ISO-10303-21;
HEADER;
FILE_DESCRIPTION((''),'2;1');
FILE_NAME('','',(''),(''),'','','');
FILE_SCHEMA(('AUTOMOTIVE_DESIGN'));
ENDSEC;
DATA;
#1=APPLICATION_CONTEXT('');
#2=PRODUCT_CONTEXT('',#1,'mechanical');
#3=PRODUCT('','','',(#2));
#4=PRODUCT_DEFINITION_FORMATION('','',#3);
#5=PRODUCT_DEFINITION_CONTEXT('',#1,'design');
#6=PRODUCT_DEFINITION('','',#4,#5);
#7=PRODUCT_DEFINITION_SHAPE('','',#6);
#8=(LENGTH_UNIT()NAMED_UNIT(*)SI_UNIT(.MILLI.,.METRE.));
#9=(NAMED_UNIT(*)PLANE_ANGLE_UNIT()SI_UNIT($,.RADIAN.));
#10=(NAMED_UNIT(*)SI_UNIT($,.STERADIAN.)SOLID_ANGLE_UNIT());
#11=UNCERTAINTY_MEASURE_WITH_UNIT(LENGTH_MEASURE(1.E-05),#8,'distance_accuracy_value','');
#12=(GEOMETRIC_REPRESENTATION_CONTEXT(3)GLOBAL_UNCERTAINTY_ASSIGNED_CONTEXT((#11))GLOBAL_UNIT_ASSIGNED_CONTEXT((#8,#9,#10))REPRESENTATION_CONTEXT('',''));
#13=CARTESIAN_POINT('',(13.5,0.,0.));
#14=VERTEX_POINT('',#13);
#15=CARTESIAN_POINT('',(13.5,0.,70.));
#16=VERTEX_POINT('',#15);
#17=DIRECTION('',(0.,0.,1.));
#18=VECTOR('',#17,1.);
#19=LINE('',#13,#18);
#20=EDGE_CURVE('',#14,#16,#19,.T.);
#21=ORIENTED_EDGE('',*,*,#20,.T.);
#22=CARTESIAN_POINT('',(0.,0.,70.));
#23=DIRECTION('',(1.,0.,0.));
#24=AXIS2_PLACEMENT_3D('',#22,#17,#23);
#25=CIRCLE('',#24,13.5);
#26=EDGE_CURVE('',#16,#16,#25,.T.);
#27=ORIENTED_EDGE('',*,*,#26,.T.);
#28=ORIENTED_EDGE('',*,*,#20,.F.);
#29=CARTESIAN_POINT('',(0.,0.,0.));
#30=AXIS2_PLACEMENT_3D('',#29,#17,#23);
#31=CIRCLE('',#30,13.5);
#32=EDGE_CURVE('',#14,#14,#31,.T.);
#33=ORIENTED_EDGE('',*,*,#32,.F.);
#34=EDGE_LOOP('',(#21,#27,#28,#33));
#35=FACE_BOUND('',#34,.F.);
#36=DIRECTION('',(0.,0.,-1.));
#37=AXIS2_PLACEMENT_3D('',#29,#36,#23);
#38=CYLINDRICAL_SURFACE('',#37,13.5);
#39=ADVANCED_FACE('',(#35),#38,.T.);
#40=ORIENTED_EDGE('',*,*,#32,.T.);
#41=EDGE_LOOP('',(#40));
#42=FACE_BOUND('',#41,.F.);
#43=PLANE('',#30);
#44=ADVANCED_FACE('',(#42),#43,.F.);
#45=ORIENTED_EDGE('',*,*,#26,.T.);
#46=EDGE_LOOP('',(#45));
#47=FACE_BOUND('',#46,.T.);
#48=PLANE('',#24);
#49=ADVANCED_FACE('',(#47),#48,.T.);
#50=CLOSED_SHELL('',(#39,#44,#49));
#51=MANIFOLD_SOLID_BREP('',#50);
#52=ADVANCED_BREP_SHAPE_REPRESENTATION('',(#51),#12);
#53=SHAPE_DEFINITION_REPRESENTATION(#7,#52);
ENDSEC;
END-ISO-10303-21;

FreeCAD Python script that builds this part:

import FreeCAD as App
import Part
import Sketcher
from FreeCAD import Vector

doc = App.newDocument("Part")
body = doc.addObject("PartDesign::Body", "Body")

sketch1 = body.newObject("Sketcher::SketchObject", "Sketch")
sketch1.AttachmentSupport = (doc.getObject("XY_Plane"), [""])
sketch1.MapMode = "FlatFace"
sketch1.addGeometry(Part.Circle(Vector(0, 0, 0), Vector(0, 0, 1), 14), False)
sketch1.addConstraint(Sketcher.Constraint("Coincident", 0, 3, -1, 1))
sketch1.addConstraint(Sketcher.Constraint("Diameter", 0, 27.0))
pad1 = body.newObject("PartDesign::Pad", "Pad")
pad1.Profile = sketch1
pad1.Length = 70

doc.recompute()
